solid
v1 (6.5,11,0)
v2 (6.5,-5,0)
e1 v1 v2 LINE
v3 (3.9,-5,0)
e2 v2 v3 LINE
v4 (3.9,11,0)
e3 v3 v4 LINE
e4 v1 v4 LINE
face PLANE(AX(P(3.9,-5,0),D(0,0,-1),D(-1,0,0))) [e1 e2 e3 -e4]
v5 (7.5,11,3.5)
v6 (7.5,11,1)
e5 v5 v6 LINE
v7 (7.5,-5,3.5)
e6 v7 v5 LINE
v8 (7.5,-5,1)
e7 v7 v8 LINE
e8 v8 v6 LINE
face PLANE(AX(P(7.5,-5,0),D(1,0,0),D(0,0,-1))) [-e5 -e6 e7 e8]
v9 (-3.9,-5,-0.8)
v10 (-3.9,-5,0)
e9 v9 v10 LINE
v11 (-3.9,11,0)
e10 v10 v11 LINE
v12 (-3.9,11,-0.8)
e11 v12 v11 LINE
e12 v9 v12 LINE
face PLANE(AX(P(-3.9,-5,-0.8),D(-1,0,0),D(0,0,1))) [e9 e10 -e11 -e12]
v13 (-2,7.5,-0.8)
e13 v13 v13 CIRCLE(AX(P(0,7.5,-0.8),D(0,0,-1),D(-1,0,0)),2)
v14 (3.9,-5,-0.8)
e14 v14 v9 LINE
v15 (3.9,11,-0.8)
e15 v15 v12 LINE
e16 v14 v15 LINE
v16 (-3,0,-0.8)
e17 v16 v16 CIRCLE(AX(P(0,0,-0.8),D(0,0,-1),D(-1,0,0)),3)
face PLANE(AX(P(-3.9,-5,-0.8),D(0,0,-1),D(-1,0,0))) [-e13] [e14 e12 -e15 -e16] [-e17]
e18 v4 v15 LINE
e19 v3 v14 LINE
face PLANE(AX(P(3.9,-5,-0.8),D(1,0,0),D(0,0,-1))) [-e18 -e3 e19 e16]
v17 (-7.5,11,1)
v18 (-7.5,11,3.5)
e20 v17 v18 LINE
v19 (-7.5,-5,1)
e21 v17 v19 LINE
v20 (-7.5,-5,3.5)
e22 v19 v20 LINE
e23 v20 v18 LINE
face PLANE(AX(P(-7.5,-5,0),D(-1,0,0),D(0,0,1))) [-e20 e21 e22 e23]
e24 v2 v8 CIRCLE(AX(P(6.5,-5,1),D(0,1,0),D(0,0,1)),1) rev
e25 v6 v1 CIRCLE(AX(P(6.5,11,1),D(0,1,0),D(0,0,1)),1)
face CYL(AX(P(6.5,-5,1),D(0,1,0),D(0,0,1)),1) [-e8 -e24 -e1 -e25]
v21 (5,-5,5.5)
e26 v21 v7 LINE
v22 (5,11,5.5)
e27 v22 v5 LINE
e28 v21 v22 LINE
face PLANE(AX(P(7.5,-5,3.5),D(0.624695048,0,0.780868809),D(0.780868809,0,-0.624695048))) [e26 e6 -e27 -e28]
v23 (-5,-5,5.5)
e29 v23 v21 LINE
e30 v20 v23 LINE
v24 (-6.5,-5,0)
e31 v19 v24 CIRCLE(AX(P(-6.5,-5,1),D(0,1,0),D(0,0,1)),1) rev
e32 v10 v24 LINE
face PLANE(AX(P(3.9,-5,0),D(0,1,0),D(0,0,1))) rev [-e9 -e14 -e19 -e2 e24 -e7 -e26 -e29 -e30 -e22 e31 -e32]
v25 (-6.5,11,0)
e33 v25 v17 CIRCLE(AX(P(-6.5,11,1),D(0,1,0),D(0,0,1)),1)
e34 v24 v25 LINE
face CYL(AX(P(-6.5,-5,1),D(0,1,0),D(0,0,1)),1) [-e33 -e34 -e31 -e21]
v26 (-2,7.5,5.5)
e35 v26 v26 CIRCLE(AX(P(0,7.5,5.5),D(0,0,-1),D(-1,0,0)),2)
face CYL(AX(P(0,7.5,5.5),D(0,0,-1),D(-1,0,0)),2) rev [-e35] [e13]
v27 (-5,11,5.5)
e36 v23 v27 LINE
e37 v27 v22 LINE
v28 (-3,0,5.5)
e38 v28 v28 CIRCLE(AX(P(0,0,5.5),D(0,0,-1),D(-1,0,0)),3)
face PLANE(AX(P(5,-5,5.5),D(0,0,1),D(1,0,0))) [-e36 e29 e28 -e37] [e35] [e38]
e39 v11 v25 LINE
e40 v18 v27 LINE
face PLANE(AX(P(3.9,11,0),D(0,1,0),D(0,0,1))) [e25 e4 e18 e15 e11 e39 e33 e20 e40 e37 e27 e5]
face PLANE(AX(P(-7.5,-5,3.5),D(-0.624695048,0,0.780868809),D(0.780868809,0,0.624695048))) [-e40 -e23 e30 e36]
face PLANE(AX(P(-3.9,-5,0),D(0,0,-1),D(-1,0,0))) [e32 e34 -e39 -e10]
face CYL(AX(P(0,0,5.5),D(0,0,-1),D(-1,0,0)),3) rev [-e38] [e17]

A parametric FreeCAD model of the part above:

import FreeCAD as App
import Part
import Sketcher
from FreeCAD import Vector


def edges_at(feature, points):
    """Names of the edges that pass closest to the given points."""
    edges = feature.Shape.Edges
    near = lambda p: min(range(len(edges)), key=lambda i: edges[i].distToShape(Part.Vertex(*p))[0])
    return sorted({f"Edge{near(p) + 1}" for p in points})


def add_polygon(sketch, points):
    """Adds a closed chain of lines whose ends are joined by coincident constraints."""
    first, n = sketch.GeometryCount, len(points)
    for a, b in zip(points, points[1:] + points[:1]):
        sketch.addGeometry(Part.LineSegment(App.Vector(*a, 0), App.Vector(*b, 0)), False)
    for i in range(n):
        sketch.addConstraint(Sketcher.Constraint("Coincident", first + i, 2, first + (i + 1) % n, 1))

doc = App.newDocument("Part")
body = doc.addObject("PartDesign::Body", "Body")

sketch1 = body.newObject("Sketcher::SketchObject", "Sketch")
sketch1.AttachmentSupport = (doc.getObject("XZ_Plane"), [""])
sketch1.MapMode = "FlatFace"
add_polygon(sketch1, [(3.9, -0.8), (-3.9, -0.8), (-3.9, 0), (-7.5, 0), (-7.5, 3.5), (-5, 5.5), (5, 5.5), (7.5, 3.5), (7.5, 0), (3.9, 0)])
sketch1.addConstraint(Sketcher.Constraint("Horizontal", 0))
sketch1.addConstraint(Sketcher.Constraint("Vertical", 1))
sketch1.addConstraint(Sketcher.Constraint("Horizontal", 2))
sketch1.addConstraint(Sketcher.Constraint("Vertical", 3))
sketch1.addConstraint(Sketcher.Constraint("Horizontal", 5))
sketch1.addConstraint(Sketcher.Constraint("Vertical", 7))
sketch1.addConstraint(Sketcher.Constraint("Horizontal", 8))
sketch1.addConstraint(Sketcher.Constraint("Vertical", 9))
sketch1.addConstraint(Sketcher.Constraint("Symmetric", 2, 2, 7, 2, -1, 1))
sketch1.addConstraint(Sketcher.Constraint("Symmetric", 1, 2, 8, 2, -2))
sketch1.addConstraint(Sketcher.Constraint("Horizontal", 3, 2, 6, 2))
sketch1.addConstraint(Sketcher.Constraint("Equal", 4, 6))
sketch1.addConstraint(Sketcher.Constraint("DistanceX", 5, 1, 5, 2, 10.0))
sketch1.addConstraint(Sketcher.Constraint("DistanceX", 0, 2, 0, 1, 7.8))
sketch1.addConstraint(Sketcher.Constraint("DistanceX", 2, 2, 2, 1, 3.6))
sketch1.addConstraint(Sketcher.Constraint("DistanceY", 1, 1, 1, 2, 0.8))
sketch1.addConstraint(Sketcher.Constraint("DistanceY", 3, 1, 3, 2, 3.5))
sketch1.addConstraint(Sketcher.Constraint("DistanceY", 3, 2, 4, 2, 2.0))
pad1 = body.newObject("PartDesign::Pad", "Pad")
pad1.Profile = sketch1
pad1.Type = "TwoLengths"
pad1.Length = 11
pad1.Length2 = 5
pad1.Reversed = True

sketch2 = body.newObject("Sketcher::SketchObject", "Sketch001")
sketch2.AttachmentSupport = (doc.getObject("XY_Plane"), [""])
sketch2.MapMode = "FlatFace"
sketch2.AttachmentOffset = App.Placement(Vector(0, 0, -0.8), App.Rotation())
sketch2.addGeometry(Part.Circle(Vector(0, 0, 0), Vector(0, 0, 1), 3), False)
sketch2.addGeometry(Part.Circle(Vector(0, 7.5, 0), Vector(0, 0, 1), 2), False)
sketch2.addConstraint(Sketcher.Constraint("Coincident", 0, 3, -1, 1))
sketch2.addConstraint(Sketcher.Constraint("PointOnObject", 1, 3, -2))
sketch2.addConstraint(Sketcher.Constraint("Diameter", 0, 6.0))
sketch2.addConstraint(Sketcher.Constraint("Diameter", 1, 4.0))
sketch2.addConstraint(Sketcher.Constraint("DistanceY", -1, 1, 1, 3, 7.5))
pocket1 = body.newObject("PartDesign::Pocket", "Pocket")
pocket1.Profile = sketch2
pocket1.Type = "ThroughAll"
pocket1.Reversed = True
doc.recompute()

fillet = body.newObject("PartDesign::Fillet", "Fillet")
fillet.Base = (pocket1, edges_at(pocket1, [(7.5, 3, 0), (-7.5, 3, 0)]))
fillet.Radius = 1

doc.recompute()
